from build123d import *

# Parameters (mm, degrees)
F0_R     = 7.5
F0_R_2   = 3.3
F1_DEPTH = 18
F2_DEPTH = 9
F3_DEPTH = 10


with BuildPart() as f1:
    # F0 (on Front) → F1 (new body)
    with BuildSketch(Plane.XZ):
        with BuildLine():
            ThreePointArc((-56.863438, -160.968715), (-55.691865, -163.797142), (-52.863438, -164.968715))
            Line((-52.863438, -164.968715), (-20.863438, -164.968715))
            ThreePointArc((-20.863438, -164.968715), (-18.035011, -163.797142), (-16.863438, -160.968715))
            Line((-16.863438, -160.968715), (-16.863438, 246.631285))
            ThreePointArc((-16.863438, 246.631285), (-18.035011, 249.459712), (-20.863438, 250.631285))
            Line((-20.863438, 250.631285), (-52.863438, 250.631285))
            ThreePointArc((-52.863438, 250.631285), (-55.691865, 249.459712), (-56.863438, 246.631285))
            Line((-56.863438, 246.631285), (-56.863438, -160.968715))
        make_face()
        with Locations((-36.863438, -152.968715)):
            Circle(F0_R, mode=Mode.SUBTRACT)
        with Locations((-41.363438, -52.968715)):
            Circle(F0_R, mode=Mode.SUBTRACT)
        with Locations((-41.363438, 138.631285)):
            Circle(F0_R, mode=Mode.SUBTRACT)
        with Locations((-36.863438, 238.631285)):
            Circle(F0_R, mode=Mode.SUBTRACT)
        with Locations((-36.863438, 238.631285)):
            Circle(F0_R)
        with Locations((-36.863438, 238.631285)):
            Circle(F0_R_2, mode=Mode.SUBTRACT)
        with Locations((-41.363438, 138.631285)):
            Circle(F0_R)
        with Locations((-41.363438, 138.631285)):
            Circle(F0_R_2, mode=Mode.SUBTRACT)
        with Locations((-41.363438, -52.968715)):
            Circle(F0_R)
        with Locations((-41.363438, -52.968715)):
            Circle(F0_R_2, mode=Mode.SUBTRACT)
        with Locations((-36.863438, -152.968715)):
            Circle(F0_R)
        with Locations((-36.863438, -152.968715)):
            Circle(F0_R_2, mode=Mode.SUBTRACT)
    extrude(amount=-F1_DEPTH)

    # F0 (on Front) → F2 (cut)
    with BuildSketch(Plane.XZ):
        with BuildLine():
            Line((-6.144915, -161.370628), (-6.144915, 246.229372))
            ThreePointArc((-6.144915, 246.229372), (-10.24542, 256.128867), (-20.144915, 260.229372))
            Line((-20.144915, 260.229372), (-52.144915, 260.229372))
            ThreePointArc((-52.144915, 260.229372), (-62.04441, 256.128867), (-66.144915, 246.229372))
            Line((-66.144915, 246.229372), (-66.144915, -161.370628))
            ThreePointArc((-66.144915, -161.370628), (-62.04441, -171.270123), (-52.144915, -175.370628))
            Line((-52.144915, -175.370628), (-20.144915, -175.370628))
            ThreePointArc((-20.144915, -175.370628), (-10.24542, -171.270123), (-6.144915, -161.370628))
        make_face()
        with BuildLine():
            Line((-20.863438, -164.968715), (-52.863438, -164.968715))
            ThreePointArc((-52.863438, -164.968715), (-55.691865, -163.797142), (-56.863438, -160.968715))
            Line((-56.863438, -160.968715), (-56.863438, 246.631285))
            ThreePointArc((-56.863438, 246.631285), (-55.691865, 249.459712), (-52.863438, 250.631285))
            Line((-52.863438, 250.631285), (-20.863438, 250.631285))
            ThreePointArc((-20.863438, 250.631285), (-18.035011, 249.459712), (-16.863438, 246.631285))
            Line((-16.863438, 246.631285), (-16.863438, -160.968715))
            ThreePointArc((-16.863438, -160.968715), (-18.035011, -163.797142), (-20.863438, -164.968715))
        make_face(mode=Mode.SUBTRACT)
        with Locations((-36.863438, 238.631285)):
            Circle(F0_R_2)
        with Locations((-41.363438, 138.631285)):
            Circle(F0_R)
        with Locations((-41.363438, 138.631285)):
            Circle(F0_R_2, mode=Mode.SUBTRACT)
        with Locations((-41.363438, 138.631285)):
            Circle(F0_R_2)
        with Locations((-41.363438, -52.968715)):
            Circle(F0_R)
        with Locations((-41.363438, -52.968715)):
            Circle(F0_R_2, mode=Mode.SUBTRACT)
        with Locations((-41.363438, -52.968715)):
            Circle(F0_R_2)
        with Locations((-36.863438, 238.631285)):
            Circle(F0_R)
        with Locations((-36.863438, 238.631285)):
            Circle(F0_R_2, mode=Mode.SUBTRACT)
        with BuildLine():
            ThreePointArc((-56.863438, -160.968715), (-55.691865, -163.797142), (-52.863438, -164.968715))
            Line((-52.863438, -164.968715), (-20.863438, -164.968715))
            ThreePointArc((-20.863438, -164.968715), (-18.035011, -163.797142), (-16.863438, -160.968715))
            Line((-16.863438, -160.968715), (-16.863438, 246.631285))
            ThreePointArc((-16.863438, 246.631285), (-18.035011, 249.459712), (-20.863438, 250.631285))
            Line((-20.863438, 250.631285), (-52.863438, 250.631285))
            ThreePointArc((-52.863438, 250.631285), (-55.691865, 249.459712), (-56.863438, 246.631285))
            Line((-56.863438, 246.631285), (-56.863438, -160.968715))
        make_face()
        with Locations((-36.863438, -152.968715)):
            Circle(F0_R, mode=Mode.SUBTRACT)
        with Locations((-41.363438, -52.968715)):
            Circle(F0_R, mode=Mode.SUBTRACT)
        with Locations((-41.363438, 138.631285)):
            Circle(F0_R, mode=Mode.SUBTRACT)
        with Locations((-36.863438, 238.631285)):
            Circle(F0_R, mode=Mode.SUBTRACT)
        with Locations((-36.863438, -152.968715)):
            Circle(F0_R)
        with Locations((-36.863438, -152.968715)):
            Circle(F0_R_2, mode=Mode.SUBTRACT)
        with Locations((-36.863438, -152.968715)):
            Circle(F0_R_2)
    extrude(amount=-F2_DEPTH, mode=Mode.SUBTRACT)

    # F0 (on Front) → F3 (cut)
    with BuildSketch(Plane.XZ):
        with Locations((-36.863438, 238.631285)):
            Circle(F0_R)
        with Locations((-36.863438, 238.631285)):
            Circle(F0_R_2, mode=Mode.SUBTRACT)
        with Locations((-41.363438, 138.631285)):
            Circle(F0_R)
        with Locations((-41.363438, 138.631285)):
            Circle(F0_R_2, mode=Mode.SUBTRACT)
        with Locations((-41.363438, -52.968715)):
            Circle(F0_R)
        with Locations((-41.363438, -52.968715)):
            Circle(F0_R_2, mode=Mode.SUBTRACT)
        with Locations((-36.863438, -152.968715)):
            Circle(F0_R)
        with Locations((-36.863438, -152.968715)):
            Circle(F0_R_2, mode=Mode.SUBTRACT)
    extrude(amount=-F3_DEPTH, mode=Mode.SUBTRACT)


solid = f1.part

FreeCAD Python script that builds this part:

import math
import FreeCAD as App
import Part
import Sketcher

V = App.Vector

doc = App.newDocument("Part")
body = doc.addObject("PartDesign::Body", "Body")

# Sketch on XZ plane
sketch1 = doc.addObject("Sketcher::SketchObject", "Sketch")
body.addObject(sketch1)
sketch1.AttachmentSupport = (doc.XZ_Plane, [""])
sketch1.MapMode = "FlatFace"
sketch1.addGeometry([
    Part.ArcOfCircle(Part.Circle(V(-52.9, -161, 0), V(0, 0, 1), 4), math.radians(-180), math.radians(-90)),  # 0
    Part.LineSegment(V(-52.9, -165, 0), V(-20.9, -165, 0)),  # 1
    Part.ArcOfCircle(Part.Circle(V(-20.9, -161, 0), V(0, 0, 1), 4), math.radians(-90), math.radians(0)),  # 2
    Part.LineSegment(V(-16.9, -161, 0), V(-16.9, 246.6, 0)),  # 3
    Part.ArcOfCircle(Part.Circle(V(-20.9, 246.6, 0), V(0, 0, 1), 4), math.radians(0), math.radians(90)),  # 4
    Part.LineSegment(V(-20.9, 250.6, 0), V(-52.9, 250.6, 0)),  # 5
    Part.ArcOfCircle(Part.Circle(V(-52.9, 246.6, 0), V(0, 0, 1), 4), math.radians(90), math.radians(180)),  # 6
    Part.LineSegment(V(-56.9, 246.6, 0), V(-56.9, -161, 0)),  # 7
    Part.Circle(V(-41.4, -53, 0), V(0, 0, 1), 3.3),  # 8
    Part.Circle(V(-36.9, -153, 0), V(0, 0, 1), 3.3),  # 9
    Part.Circle(V(-41.4, 138.6, 0), V(0, 0, 1), 3.3),  # 10
    Part.Circle(V(-36.9, 238.6, 0), V(0, 0, 1), 3.3),  # 11
], False)
sketch1.addConstraint([
    Sketcher.Constraint("Tangent", 0, 2, 1, 1),
    Sketcher.Constraint("Tangent", 1, 2, 2, 1),
    Sketcher.Constraint("Tangent", 2, 2, 3, 1),
    Sketcher.Constraint("Tangent", 3, 2, 4, 1),
    Sketcher.Constraint("Tangent", 4, 2, 5, 1),
    Sketcher.Constraint("Tangent", 5, 2, 6, 1),
    Sketcher.Constraint("Tangent", 6, 2, 7, 1),
    Sketcher.Constraint("Tangent", 7, 2, 0, 1),
    Sketcher.Constraint("Horizontal", 1),
    Sketcher.Constraint("Vertical", 3),
    Sketcher.Constraint("Horizontal", 5),
    Sketcher.Constraint("Vertical", 7),
    Sketcher.Constraint("Equal", 0, 2),
    Sketcher.Constraint("Equal", 2, 4),
    Sketcher.Constraint("Equal", 4, 6),
    Sketcher.Constraint("Equal", 8, 9),
    Sketcher.Constraint("Equal", 9, 10),
    Sketcher.Constraint("Equal", 10, 11),
    Sketcher.Constraint("Vertical", 8, 3, 10, 3),
    Sketcher.Constraint("Vertical", 9, 3, 11, 3),
    Sketcher.Constraint("Radius", 0, 4.0),
    Sketcher.Constraint("Diameter", 8, 6.6),
    Sketcher.Constraint("DistanceX", 1, 1, 1, 2, 32.0),
    Sketcher.Constraint("DistanceY", 3, 1, 3, 2, 407.6),
    Sketcher.Constraint("DistanceY", 0, 3, 8, 3, 108.0),
    Sketcher.Constraint("DistanceX", 0, 3, 9, 3, 16.0),
    Sketcher.Constraint("DistanceY", 0, 3, 9, 3, 8.0),
    Sketcher.Constraint("DistanceY", 10, 3, 6, 3, 108.0),
    Sketcher.Constraint("DistanceY", 11, 3, 6, 3, 8.0),
    Sketcher.Constraint("DistanceX", 0, 3, 8, 3, 11.5),
    Sketcher.Constraint("DistanceX", 2, 3, -1, 1, 20.863438),
    Sketcher.Constraint("DistanceY", 0, 3, -1, 1, 160.968715),
])
pad1 = doc.addObject("PartDesign::Pad", "Pad")
body.addObject(pad1)
pad1.Profile = sketch1
pad1.Length = 18
pad1.Reversed = True

# Sketch on XZ plane
sketch2 = doc.addObject("Sketcher::SketchObject", "Sketch001")
body.addObject(sketch2)
sketch2.AttachmentSupport = (doc.XZ_Plane, [""])
sketch2.MapMode = "FlatFace"
sketch2.addGeometry([
    Part.LineSegment(V(-6, -161, 0), V(-6, 246, 0)),  # 0
    Part.ArcOfCircle(Part.Circle(V(-20, 246, 0), V(0, 0, 1), 14), math.radians(0), math.radians(90)),  # 1
    Part.LineSegment(V(-20, 260, 0), V(-52, 260, 0)),  # 2
    Part.ArcOfCircle(Part.Circle(V(-52, 246, 0), V(0, 0, 1), 14), math.radians(90), math.radians(180)),  # 3
    Part.LineSegment(V(-66, 246, 0), V(-66, -161, 0)),  # 4
    Part.ArcOfCircle(Part.Circle(V(-52, -161, 0), V(0, 0, 1), 14), math.radians(180), math.radians(270)),  # 5
    Part.LineSegment(V(-52, -175, 0), V(-20, -175, 0)),  # 6
    Part.ArcOfCircle(Part.Circle(V(-20, -161, 0), V(0, 0, 1), 14), math.radians(-90), math.radians(0)),  # 7
    Part.Circle(V(-41, -53, 0), V(0, 0, 1), 8),  # 8
    Part.Circle(V(-41, 139, 0), V(0, 0, 1), 8),  # 9
    Part.Circle(V(-37, 239, 0), V(0, 0, 1), 8),  # 10
], False)
sketch2.addConstraint([
    Sketcher.Constraint("Tangent", 0, 2, 1, 1),
    Sketcher.Constraint("Tangent", 1, 2, 2, 1),
    Sketcher.Constraint("Tangent", 2, 2, 3, 1),
    Sketcher.Constraint("Tangent", 3, 2, 4, 1),
    Sketcher.Constraint("Tangent", 4, 2, 5, 1),
    Sketcher.Constraint("Tangent", 5, 2, 6, 1),
    Sketcher.Constraint("Tangent", 6, 2, 7, 1),
    Sketcher.Constraint("Tangent", 7, 2, 0, 1),
    Sketcher.Constraint("Vertical", 0),
    Sketcher.Constraint("Horizontal", 2),
    Sketcher.Constraint("Vertical", 4),
    Sketcher.Constraint("Horizontal", 6),
    Sketcher.Constraint("Equal", 1, 3),
    Sketcher.Constraint("Equal", 3, 5),
    Sketcher.Constraint("Equal", 5, 7),
    Sketcher.Constraint("Equal", 8, 9),
    Sketcher.Constraint("Equal", 9, 10),
    Sketcher.Constraint("Vertical", 8, 3, 9, 3),
    Sketcher.Constraint("Diameter", 8, 15.0),
    Sketcher.Constraint("Radius", 1, 14.0),
    Sketcher.Constraint("DistanceX", 2, 2, 2, 1, 32.0),
    Sketcher.Constraint("DistanceY", 0, 1, 0, 2, 407.6),
    Sketcher.Constraint("DistanceY", 9, 3, 10, 3, 100.0),
    Sketcher.Constraint("DistanceY", 8, 3, 9, 3, 191.6),
    Sketcher.Constraint("DistanceX", 9, 3, 10, 3, 4.5),
    Sketcher.Constraint("DistanceY", 5, 3, -1, 1, 161.370628),
    Sketcher.Constraint("DistanceX", 8, 3, -1, 1, 41.363438),
    Sketcher.Constraint("DistanceX", 1, 3, -1, 1, 20.144915),
    Sketcher.Constraint("DistanceY", 8, 3, -1, 1, 52.968715),
])
pocket1 = doc.addObject("PartDesign::Pocket", "Pocket")
body.addObject(pocket1)
pocket1.Profile = sketch2
pocket1.Length = 9

# Sketch on XZ plane
sketch3 = doc.addObject("Sketcher::SketchObject", "Sketch002")
body.addObject(sketch3)
sketch3.AttachmentSupport = (doc.XZ_Plane, [""])
sketch3.MapMode = "FlatFace"
sketch3.addGeometry([
    Part.Circle(V(-36.9, 238.6, 0), V(0, 0, 1), 7.5),  # 0
    Part.Circle(V(-36.9, 238.6, 0), V(0, 0, 1), 3.3),  # 1
    Part.Circle(V(-41.4, 138.6, 0), V(0, 0, 1), 7.5),  # 2
    Part.Circle(V(-41.4, 138.6, 0), V(0, 0, 1), 3.3),  # 3
    Part.Circle(V(-41.4, -53, 0), V(0, 0, 1), 7.5),  # 4
    Part.Circle(V(-41.4, -53, 0), V(0, 0, 1), 3.3),  # 5
    Part.Circle(V(-36.9, -153, 0), V(0, 0, 1), 7.5),  # 6
    Part.Circle(V(-36.9, -153, 0), V(0, 0, 1), 3.3),  # 7
], False)
sketch3.addConstraint([
    Sketcher.Constraint("Coincident", 1, 3, 0, 3),
    Sketcher.Constraint("Coincident", 3, 3, 2, 3),
    Sketcher.Constraint("Coincident", 5, 3, 4, 3),
    Sketcher.Constraint("Coincident", 7, 3, 6, 3),
    Sketcher.Constraint("Equal", 0, 2),
    Sketcher.Constraint("Equal", 1, 3),
    Sketcher.Constraint("Equal", 2, 4),
    Sketcher.Constraint("Equal", 3, 5),
    Sketcher.Constraint("Equal", 4, 6),
    Sketcher.Constraint("Equal", 5, 7),
    Sketcher.Constraint("Vertical", 3, 3, 4, 3),
    Sketcher.Constraint("Vertical", 1, 3, 6, 3),
    Sketcher.Constraint("Diameter", 0, 15.0),
    Sketcher.Constraint("Diameter", 1, 6.6),
    Sketcher.Constraint("DistanceY", 2, 3, 0, 3, 100.0),
    Sketcher.Constraint("DistanceY", 6, 3, 4, 3, 100.0),
    Sketcher.Constraint("DistanceX", 2, 3, 0, 3, 4.5),
    Sketcher.Constraint("DistanceY", 4, 3, 2, 3, 191.6),
    Sketcher.Constraint("DistanceX", 0, 3, -1, 1, 36.863438),
    Sketcher.Constraint("DistanceY", -1, 1, 0, 3, 238.631285),
])
pocket2 = doc.addObject("PartDesign::Pocket", "Pocket001")
body.addObject(pocket2)
pocket2.Profile = sketch3
pocket2.Length = 10

doc.recompute()
